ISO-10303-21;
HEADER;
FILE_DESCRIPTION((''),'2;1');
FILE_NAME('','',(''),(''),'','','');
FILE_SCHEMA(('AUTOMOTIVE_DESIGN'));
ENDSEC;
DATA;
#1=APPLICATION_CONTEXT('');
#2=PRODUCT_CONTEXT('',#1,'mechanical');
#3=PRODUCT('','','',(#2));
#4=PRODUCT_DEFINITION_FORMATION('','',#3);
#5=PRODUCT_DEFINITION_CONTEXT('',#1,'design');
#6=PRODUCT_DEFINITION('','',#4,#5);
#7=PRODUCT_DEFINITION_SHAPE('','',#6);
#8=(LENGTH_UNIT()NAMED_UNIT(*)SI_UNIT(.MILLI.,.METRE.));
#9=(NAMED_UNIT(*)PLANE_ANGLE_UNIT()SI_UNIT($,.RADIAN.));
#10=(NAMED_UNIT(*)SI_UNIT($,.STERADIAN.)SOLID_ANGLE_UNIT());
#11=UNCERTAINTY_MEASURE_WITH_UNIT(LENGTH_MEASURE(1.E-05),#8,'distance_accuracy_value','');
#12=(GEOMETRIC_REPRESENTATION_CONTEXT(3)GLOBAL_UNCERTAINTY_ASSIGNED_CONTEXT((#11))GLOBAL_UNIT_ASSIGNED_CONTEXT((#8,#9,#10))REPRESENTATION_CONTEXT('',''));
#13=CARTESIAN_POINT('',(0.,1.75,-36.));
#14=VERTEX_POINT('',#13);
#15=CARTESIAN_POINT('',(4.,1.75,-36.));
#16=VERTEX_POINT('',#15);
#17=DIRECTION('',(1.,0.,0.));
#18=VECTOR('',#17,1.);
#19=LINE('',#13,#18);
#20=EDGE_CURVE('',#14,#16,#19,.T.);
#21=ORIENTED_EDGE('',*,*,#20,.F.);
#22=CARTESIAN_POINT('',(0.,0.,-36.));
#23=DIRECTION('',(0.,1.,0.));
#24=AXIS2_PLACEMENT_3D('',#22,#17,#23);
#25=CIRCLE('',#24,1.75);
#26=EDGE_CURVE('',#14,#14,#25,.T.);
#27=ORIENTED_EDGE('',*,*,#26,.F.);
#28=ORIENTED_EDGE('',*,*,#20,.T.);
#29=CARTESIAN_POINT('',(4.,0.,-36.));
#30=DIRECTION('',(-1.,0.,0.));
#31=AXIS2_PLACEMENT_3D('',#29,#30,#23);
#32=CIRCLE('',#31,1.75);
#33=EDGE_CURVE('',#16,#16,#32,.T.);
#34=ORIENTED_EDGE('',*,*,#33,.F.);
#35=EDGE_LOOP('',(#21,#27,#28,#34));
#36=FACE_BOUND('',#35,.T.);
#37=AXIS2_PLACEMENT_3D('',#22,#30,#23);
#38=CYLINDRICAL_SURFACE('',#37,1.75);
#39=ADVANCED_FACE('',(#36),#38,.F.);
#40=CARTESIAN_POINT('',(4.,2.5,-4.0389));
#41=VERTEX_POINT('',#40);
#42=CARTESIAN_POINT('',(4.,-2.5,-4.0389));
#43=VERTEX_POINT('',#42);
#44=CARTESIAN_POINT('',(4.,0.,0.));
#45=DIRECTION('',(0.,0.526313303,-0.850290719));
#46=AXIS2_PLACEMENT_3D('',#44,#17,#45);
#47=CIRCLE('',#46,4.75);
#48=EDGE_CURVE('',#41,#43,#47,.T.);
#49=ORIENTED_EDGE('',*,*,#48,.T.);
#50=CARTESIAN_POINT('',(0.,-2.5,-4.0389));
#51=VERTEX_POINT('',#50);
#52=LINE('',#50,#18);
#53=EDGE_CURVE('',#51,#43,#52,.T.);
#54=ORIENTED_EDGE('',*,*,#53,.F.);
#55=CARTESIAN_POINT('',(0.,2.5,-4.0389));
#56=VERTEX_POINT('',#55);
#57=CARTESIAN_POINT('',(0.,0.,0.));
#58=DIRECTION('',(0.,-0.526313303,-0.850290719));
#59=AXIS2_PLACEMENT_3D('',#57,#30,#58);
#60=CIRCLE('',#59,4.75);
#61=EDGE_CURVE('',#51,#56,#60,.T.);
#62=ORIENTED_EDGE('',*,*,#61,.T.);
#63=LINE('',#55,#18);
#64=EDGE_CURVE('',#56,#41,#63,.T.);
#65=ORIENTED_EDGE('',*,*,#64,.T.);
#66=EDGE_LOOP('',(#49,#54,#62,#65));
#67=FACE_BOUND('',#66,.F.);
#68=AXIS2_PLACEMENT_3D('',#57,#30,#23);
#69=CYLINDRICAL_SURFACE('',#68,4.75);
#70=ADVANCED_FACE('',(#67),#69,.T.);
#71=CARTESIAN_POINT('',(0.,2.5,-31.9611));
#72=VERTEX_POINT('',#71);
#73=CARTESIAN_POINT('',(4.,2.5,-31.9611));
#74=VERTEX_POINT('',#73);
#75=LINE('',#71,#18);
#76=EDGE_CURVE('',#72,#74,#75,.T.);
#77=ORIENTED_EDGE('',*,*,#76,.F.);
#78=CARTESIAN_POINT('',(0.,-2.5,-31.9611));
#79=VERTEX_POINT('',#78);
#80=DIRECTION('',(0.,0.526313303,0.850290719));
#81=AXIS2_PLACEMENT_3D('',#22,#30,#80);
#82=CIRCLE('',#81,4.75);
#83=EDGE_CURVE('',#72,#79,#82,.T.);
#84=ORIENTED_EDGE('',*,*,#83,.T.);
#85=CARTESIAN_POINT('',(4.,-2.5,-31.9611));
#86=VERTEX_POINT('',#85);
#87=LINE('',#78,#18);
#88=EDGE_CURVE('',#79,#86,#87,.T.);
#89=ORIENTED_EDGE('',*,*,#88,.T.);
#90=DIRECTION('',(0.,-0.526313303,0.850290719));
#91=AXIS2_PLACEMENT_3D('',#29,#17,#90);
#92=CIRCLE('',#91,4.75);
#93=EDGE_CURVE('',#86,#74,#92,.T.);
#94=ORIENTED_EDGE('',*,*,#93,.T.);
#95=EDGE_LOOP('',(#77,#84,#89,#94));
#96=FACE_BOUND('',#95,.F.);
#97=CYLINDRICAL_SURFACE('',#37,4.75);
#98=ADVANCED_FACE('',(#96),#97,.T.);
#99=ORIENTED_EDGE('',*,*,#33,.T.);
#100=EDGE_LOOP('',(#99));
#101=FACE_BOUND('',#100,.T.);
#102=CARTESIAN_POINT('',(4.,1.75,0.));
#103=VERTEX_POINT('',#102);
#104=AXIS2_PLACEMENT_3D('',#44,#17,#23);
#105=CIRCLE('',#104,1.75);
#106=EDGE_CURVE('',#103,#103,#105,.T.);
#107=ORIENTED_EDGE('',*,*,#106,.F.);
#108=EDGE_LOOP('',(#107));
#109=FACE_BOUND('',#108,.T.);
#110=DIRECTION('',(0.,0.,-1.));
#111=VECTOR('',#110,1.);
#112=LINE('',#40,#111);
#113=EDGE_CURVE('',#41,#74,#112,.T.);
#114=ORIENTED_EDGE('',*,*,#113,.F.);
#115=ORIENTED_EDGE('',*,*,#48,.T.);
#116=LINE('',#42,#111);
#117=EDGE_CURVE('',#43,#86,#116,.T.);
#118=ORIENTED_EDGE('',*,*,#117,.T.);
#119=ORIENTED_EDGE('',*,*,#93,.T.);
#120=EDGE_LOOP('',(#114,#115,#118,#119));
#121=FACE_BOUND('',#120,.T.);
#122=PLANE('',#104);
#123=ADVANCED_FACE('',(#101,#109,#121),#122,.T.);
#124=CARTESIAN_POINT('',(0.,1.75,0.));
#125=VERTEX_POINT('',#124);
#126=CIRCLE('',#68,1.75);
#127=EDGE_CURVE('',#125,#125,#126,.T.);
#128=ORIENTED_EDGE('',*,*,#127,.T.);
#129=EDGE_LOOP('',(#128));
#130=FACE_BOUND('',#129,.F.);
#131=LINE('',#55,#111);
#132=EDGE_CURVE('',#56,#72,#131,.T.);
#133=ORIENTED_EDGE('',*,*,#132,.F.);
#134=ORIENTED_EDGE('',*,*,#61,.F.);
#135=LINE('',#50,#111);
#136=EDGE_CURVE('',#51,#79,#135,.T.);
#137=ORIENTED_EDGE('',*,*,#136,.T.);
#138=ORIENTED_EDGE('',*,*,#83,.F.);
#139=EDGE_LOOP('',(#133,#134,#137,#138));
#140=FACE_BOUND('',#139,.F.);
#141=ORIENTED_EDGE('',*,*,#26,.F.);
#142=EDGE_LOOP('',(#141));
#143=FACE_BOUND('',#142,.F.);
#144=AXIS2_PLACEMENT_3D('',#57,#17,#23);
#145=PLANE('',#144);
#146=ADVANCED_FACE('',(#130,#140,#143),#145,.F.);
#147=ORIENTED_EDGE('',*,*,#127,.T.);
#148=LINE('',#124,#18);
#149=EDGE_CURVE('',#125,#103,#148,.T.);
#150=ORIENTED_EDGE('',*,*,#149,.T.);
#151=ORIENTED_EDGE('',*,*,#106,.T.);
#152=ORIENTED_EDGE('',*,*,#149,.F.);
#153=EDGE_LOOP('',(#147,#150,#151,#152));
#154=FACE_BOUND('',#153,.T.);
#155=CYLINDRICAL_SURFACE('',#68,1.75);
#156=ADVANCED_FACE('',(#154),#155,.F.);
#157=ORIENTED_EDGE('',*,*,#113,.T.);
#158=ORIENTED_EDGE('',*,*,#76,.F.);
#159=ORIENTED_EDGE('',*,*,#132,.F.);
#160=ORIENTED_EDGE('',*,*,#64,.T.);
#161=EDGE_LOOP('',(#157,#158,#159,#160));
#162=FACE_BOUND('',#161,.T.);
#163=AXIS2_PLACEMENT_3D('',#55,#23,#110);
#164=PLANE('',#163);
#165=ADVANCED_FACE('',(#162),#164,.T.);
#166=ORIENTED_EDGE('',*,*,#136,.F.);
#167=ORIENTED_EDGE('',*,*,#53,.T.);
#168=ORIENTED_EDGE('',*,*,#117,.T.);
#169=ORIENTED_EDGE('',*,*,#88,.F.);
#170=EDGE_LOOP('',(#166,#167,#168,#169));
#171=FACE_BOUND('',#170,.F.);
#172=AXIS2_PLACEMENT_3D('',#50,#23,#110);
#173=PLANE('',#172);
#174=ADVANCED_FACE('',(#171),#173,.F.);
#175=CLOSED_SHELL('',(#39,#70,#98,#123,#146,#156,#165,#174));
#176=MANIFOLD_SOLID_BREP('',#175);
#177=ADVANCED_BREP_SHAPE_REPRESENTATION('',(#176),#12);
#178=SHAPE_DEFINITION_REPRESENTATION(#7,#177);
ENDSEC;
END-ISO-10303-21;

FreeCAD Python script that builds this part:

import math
import FreeCAD as App
import Part
import Sketcher
from FreeCAD import Vector

doc = App.newDocument("Part")
body = doc.addObject("PartDesign::Body", "Body")

# Sketch on YZ plane
sketch1 = doc.addObject("Sketcher::SketchObject", "Sketch")
body.addObject(sketch1)
sketch1.AttachmentSupport = (doc.YZ_Plane, [""])
sketch1.MapMode = "FlatFace"
sketch1.addGeometry([
    Part.LineSegment(Vector(-2.5, -4.0389, 0), Vector(-2.5, -31.9611, 0)),  # 0
    Part.ArcOfCircle(Part.Circle(Vector(0, -36, 0), Vector(0, 0, 1), 4.75), math.radians(121.756696), math.radians(418.243304)),  # 1
    Part.LineSegment(Vector(2.5, -31.9611, 0), Vector(2.5, -4.0389, 0)),  # 2
    Part.ArcOfCircle(Part.Circle(Vector(0, 0, 0), Vector(0, 0, 1), 4.75), math.radians(-58.243304), math.radians(238.243304)),  # 3
    Part.Circle(Vector(0, 0, 0), Vector(0, 0, 1), 1.75),  # 4
    Part.Circle(Vector(0, -36, 0), Vector(0, 0, 1), 1.75),  # 5
], False)
sketch1.addConstraint([
    Sketcher.Constraint("Coincident", 0, 2, 1, 1),
    Sketcher.Constraint("Coincident", 1, 2, 2, 1),
    Sketcher.Constraint("Coincident", 2, 2, 3, 1),
    Sketcher.Constraint("Coincident", 3, 2, 0, 1),
    Sketcher.Constraint("Vertical", 0),
    Sketcher.Constraint("Vertical", 2),
    Sketcher.Constraint("Coincident", 3, 3, -1, 1),
    Sketcher.Constraint("Coincident", 4, 3, -1, 1),
    Sketcher.Constraint("Coincident", 5, 3, 1, 3),
    Sketcher.Constraint("Equal", 1, 3),
    Sketcher.Constraint("Equal", 4, 5),
    Sketcher.Constraint("Symmetric", 0, 2, 1, 2, -2),
    Sketcher.Constraint("Diameter", 4, 3.5),
    Sketcher.Constraint("DistanceY", 1, 3, -1, 1, 36.0),
    Sketcher.Constraint("DistanceX", 0, 2, 1, 2, 5.0),
    Sketcher.Constraint("Radius", 1, 4.75),
])
pad1 = doc.addObject("PartDesign::Pad", "Pad")
body.addObject(pad1)
pad1.Profile = sketch1
pad1.Length = 4

doc.recompute()
